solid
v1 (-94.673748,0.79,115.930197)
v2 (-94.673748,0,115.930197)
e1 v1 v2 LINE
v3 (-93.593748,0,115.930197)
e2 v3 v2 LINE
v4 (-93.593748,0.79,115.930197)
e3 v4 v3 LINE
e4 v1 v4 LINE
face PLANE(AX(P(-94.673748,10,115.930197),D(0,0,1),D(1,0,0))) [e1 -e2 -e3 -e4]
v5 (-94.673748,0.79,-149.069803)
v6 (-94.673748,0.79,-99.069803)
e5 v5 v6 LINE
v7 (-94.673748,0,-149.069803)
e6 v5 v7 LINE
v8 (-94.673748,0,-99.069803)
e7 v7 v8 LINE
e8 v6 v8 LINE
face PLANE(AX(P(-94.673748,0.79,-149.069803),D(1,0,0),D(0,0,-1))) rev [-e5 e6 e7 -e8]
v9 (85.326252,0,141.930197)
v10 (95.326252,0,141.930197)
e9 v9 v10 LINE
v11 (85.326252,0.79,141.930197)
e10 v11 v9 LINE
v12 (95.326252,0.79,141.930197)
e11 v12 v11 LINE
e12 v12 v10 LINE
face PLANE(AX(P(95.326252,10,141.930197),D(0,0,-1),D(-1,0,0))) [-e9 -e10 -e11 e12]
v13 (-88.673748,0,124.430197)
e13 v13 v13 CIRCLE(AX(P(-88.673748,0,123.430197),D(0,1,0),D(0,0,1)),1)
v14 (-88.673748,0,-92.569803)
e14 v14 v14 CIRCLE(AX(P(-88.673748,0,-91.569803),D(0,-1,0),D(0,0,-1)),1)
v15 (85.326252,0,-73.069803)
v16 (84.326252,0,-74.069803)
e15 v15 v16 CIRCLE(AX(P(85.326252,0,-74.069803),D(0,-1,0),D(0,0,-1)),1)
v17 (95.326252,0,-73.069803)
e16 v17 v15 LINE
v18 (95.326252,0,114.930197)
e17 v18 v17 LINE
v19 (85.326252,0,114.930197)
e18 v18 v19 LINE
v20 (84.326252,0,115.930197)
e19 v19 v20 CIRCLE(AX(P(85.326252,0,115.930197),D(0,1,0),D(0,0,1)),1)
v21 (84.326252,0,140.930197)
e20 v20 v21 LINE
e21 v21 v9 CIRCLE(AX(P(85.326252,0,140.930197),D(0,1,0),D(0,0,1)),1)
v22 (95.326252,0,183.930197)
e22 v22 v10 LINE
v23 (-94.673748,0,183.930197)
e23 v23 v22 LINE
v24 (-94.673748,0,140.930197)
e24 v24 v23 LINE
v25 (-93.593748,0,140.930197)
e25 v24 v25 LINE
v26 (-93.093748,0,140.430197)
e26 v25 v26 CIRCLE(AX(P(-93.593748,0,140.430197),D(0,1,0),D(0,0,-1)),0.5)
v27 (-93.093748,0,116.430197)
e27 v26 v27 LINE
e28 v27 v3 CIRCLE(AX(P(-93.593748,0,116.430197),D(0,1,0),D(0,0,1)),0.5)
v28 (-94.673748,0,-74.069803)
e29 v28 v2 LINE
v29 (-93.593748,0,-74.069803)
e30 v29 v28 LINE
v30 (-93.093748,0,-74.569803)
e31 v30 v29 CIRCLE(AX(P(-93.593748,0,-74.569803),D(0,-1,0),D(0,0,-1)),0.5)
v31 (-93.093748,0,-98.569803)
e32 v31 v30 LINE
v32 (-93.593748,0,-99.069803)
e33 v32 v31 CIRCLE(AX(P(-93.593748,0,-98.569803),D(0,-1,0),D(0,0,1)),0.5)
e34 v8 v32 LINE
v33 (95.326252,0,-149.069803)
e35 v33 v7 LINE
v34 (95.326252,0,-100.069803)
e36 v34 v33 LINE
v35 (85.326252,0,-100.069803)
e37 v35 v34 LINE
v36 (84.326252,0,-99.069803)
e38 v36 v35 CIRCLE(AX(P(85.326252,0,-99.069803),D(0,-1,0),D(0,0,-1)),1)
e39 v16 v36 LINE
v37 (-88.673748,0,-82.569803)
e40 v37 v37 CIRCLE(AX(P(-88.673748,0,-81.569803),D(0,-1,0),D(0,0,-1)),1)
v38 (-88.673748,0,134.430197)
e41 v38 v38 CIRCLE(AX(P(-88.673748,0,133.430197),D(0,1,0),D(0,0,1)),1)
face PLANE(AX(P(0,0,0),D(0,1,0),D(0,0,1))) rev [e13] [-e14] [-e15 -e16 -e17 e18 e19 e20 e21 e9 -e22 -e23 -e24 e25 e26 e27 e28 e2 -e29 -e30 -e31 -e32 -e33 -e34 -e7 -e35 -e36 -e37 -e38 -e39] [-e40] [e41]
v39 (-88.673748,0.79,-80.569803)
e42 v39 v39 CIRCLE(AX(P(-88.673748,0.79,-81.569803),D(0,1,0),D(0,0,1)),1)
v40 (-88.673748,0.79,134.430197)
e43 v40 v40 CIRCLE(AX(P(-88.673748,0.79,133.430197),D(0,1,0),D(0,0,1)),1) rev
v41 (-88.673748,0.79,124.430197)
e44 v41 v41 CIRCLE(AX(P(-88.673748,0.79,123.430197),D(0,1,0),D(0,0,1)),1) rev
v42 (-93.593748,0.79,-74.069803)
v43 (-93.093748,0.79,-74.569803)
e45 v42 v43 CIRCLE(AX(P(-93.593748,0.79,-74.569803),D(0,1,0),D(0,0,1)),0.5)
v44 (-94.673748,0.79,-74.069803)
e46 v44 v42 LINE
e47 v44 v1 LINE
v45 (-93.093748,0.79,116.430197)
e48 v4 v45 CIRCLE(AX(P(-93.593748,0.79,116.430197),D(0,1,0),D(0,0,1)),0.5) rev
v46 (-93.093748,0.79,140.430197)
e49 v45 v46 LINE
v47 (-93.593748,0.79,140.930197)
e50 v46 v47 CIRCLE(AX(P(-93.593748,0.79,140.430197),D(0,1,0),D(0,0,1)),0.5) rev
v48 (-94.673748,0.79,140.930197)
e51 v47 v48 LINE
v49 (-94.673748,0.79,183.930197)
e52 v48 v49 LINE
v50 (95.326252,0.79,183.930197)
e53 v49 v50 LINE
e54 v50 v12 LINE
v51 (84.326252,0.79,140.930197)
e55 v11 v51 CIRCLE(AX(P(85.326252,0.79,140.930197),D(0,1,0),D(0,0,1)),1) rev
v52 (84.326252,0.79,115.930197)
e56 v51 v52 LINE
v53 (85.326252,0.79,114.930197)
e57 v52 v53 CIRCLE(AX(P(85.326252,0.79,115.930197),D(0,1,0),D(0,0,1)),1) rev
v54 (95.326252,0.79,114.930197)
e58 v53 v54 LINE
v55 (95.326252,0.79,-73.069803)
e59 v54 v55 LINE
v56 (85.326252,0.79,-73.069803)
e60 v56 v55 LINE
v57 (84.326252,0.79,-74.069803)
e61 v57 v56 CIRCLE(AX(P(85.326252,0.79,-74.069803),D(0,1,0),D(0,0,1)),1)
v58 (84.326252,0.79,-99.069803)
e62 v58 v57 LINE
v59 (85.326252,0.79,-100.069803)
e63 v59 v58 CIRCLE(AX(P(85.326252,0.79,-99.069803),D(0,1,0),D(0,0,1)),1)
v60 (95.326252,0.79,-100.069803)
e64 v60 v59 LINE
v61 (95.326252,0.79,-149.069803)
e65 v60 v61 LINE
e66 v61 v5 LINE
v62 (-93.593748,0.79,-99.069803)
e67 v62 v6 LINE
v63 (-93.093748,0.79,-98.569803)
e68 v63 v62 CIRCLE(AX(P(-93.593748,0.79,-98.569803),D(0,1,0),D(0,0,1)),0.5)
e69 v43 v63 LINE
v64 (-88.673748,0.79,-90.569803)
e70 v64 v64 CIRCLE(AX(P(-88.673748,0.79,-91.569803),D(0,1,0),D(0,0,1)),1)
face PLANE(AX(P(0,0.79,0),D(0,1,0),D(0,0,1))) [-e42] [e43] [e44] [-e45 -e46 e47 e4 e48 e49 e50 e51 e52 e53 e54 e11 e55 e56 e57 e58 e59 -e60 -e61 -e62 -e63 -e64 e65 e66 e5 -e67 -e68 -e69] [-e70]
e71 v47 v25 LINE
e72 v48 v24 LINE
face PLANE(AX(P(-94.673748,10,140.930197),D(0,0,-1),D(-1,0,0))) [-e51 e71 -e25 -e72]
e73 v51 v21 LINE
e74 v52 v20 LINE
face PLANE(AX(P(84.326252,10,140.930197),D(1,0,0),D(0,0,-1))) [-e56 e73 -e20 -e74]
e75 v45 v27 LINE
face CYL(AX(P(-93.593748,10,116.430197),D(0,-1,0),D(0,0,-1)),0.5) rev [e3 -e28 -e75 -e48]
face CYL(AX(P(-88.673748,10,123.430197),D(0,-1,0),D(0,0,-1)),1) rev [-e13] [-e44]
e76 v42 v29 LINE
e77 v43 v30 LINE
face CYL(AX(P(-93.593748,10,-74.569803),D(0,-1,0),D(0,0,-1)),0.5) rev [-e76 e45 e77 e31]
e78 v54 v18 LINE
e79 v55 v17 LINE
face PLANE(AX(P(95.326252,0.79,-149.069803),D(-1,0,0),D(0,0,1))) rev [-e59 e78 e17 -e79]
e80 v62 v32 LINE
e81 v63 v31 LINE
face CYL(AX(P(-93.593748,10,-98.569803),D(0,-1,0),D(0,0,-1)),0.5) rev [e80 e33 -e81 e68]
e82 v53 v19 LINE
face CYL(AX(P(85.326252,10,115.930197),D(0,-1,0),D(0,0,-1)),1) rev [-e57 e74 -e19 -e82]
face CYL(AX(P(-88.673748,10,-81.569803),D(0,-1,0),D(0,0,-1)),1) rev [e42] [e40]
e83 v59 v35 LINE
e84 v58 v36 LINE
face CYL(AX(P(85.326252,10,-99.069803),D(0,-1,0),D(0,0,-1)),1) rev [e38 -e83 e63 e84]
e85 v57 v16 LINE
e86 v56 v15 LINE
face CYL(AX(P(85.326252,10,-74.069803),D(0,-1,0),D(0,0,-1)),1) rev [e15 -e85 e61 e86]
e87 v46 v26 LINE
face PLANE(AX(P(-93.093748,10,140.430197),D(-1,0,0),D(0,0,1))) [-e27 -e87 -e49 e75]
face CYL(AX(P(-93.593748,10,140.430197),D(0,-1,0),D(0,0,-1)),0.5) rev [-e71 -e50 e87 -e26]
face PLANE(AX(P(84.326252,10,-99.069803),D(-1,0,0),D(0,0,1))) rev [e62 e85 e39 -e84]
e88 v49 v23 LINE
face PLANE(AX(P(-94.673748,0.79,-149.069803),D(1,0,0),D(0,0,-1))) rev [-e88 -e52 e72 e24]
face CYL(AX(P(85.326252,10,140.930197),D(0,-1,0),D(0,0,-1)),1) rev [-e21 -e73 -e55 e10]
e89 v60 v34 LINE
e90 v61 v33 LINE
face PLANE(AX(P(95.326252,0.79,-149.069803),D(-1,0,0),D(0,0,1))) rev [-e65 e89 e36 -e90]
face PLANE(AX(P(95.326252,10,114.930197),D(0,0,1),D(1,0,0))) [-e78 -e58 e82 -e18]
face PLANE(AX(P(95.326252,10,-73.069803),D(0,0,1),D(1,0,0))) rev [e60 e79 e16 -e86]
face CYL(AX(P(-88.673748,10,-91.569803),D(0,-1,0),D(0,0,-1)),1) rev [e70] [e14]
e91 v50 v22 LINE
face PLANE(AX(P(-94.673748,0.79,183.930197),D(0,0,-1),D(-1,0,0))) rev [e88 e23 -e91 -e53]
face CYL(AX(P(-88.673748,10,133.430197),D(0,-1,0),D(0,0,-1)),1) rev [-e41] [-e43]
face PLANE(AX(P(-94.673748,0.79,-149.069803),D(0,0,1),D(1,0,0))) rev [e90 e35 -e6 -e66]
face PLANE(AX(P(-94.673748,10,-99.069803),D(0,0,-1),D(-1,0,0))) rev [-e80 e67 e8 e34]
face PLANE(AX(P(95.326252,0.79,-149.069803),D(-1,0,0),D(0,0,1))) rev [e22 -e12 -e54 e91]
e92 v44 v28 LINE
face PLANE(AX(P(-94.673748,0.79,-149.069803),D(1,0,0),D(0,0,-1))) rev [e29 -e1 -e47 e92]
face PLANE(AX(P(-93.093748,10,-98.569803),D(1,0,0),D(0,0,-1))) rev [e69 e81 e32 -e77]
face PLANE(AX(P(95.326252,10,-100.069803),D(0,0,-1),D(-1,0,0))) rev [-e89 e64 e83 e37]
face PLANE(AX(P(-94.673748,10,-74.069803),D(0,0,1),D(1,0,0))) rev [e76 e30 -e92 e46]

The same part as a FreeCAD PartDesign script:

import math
import FreeCAD as App
import Part
import Sketcher
Q = App.Units.Quantity


def add_polygon(sketch, points):
    """Adds a closed chain of lines whose ends are joined by coincident constraints."""
    first, n = sketch.GeometryCount, len(points)
    for a, b in zip(points, points[1:] + points[:1]):
        sketch.addGeometry(Part.LineSegment(App.Vector(*a, 0), App.Vector(*b, 0)), False)
    for i in range(n):
        sketch.addConstraint(Sketcher.Constraint("Coincident", first + i, 2, first + (i + 1) % n, 1))

doc = App.newDocument("Part")
body = doc.addObject("PartDesign::Body", "Body")

# Sketch on XZ plane
sketch1 = body.newObject("Sketcher::SketchObject", "Sketch")
sketch1.AttachmentSupport = (doc.getObject("XZ_Plane"), [""])
sketch1.MapMode = "FlatFace"
add_polygon(sketch1, [(95, -149), (-95, -149), (-95, 184), (95, 184)])  # lines 0-3
sketch1.addConstraint([
    Sketcher.Constraint("Horizontal", 0),
    Sketcher.Constraint("Vertical", 1),
    Sketcher.Constraint("Horizontal", 2),
    Sketcher.Constraint("Vertical", 3),
    Sketcher.Constraint("DistanceX", 0, 2, 0, 1, Q("190 mm")),
    Sketcher.Constraint("DistanceY", 1, 1, 1, 2, Q("333 mm")),
    Sketcher.Constraint("DistanceX", 0, 2, -1, 1, Q("94.673748 mm")),
    Sketcher.Constraint("DistanceY", 0, 2, -1, 1, Q("149.069803 mm")),
])
pad1 = body.newObject("PartDesign::Pad", "Pad")
pad1.Profile = sketch1
pad1.Length = 0.79
pad1.Reversed = True

# Sketch on XZ plane
sketch2 = body.newObject("Sketcher::SketchObject", "Sketch001")
sketch2.AttachmentSupport = (doc.getObject("XZ_Plane"), [""])
sketch2.MapMode = "FlatFace"
sketch2.addGeometry([
    Part.Circle(App.Vector(-88.7, -91.6, 0), App.Vector(0, 0, 1), 1),  # 0
    Part.Circle(App.Vector(-88.7, -81.6, 0), App.Vector(0, 0, 1), 1),  # 1
    Part.LineSegment(App.Vector(-94.7, -99.1, 0), App.Vector(-93.6, -99.1, 0)),  # 2
    Part.ArcOfCircle(Part.Circle(App.Vector(-93.6, -98.6, 0), App.Vector(0, 0, 1), 0.5), math.radians(-90), math.radians(0)),  # 3
    Part.LineSegment(App.Vector(-93.1, -98.6, 0), App.Vector(-93.1, -74.6, 0)),  # 4
    Part.ArcOfCircle(Part.Circle(App.Vector(-93.6, -74.6, 0), App.Vector(0, 0, 1), 0.5), math.radians(0), math.radians(90)),  # 5
    Part.LineSegment(App.Vector(-93.6, -74.1, 0), App.Vector(-94.7, -74.1, 0)),  # 6
    Part.LineSegment(App.Vector(-94.7, -74.1, 0), App.Vector(-94.7, -99.1, 0)),  # 7
], False)
sketch2.addConstraint([
    Sketcher.Constraint("Tangent", 2, 2, 3, 1),
    Sketcher.Constraint("Tangent", 3, 2, 4, 1),
    Sketcher.Constraint("Tangent", 4, 2, 5, 1),
    Sketcher.Constraint("Tangent", 5, 2, 6, 1),
    Sketcher.Constraint("Coincident", 6, 2, 7, 1),
    Sketcher.Constraint("Coincident", 7, 2, 2, 1),
    Sketcher.Constraint("Horizontal", 2),
    Sketcher.Constraint("Vertical", 4),
    Sketcher.Constraint("Horizontal", 6),
    Sketcher.Constraint("Vertical", 7),
    Sketcher.Constraint("Equal", 0, 1),
    Sketcher.Constraint("Equal", 3, 5),
    Sketcher.Constraint("Vertical", 0, 3, 1, 3),
    Sketcher.Constraint("Diameter", 0, Q("2 mm")),
    Sketcher.Constraint("Radius", 3, Q("0.5 mm")),
    Sketcher.Constraint("DistanceY", 4, 1, 4, 2, Q("24 mm")),
    Sketcher.Constraint("DistanceY", 0, 3, 1, 3, Q("10 mm")),
    Sketcher.Constraint("DistanceY", 3, 3, 0, 3, Q("7 mm")),
    Sketcher.Constraint("DistanceX", 6, 2, 1, 3, Q("6 mm")),
    Sketcher.Constraint("DistanceX", 2, 1, 2, 2, Q("1.08 mm")),
    Sketcher.Constraint("DistanceX", 0, 3, -1, 1, Q("88.673748 mm")),
    Sketcher.Constraint("DistanceY", 0, 3, -1, 1, Q("91.569803 mm")),
])
pocket1 = body.newObject("PartDesign::Pocket", "Pocket")
pocket1.Profile = sketch2
pocket1.Length = 10

# Sketch on XZ plane
sketch3 = body.newObject("Sketcher::SketchObject", "Sketch002")
sketch3.AttachmentSupport = (doc.getObject("XZ_Plane"), [""])
sketch3.MapMode = "FlatFace"
sketch3.addGeometry([
    Part.LineSegment(App.Vector(85.3, -100.1, 0), App.Vector(95.3, -100.1, 0)),  # 0
    Part.LineSegment(App.Vector(95.3, -100.1, 0), App.Vector(95.3, -73.1, 0)),  # 1
    Part.LineSegment(App.Vector(95.3, -73.1, 0), App.Vector(85.3, -73.1, 0)),  # 2
    Part.ArcOfCircle(Part.Circle(App.Vector(85.3, -74.1, 0), App.Vector(0, 0, 1), 1), math.radians(90), math.radians(180)),  # 3
    Part.LineSegment(App.Vector(84.3, -74.1, 0), App.Vector(84.3, -99.1, 0)),  # 4
    Part.ArcOfCircle(Part.Circle(App.Vector(85.3, -99.1, 0), App.Vector(0, 0, 1), 1), math.radians(180), math.radians(270)),  # 5
], False)
sketch3.addConstraint([
    Sketcher.Constraint("Coincident", 0, 2, 1, 1),
    Sketcher.Constraint("Coincident", 1, 2, 2, 1),
    Sketcher.Constraint("Tangent", 2, 2, 3, 1),
    Sketcher.Constraint("Tangent", 3, 2, 4, 1),
    Sketcher.Constraint("Tangent", 4, 2, 5, 1),
    Sketcher.Constraint("Tangent", 5, 2, 0, 1),
    Sketcher.Constraint("Horizontal", 0),
    Sketcher.Constraint("Vertical", 1),
    Sketcher.Constraint("Horizontal", 2),
    Sketcher.Constraint("Vertical", 4),
    Sketcher.Constraint("Equal", 3, 5),
    Sketcher.Constraint("Radius", 3, Q("1 mm")),
    Sketcher.Constraint("DistanceX", 0, 1, 0, 2, Q("10 mm")),
    Sketcher.Constraint("DistanceY", 1, 1, 1, 2, Q("27 mm")),
    Sketcher.Constraint("DistanceX", -1, 1, 3, 3, Q("85.326252 mm")),
    Sketcher.Constraint("DistanceY", 3, 3, -1, 1, Q("74.069803 mm")),
])
pocket2 = body.newObject("PartDesign::Pocket", "Pocket001")
pocket2.Profile = sketch3
pocket2.Length = 10
doc.recompute()

datumplane = body.newObject("PartDesign::Plane", "DatumPlane")
datumplane.AttachmentSupport = (doc.getObject("XY_Plane"), [""])
datumplane.MapMode = "FlatFace"
datumplane.AttachmentOffset = App.Placement(App.Vector(0, 0, 20.930197), App.Rotation())
mirrored = body.newObject("PartDesign::Mirrored", "Mirrored")
mirrored.Originals = [pocket1, pocket2]
mirrored.MirrorPlane = (datumplane, [""])
body.Tip = mirrored

doc.recompute()
